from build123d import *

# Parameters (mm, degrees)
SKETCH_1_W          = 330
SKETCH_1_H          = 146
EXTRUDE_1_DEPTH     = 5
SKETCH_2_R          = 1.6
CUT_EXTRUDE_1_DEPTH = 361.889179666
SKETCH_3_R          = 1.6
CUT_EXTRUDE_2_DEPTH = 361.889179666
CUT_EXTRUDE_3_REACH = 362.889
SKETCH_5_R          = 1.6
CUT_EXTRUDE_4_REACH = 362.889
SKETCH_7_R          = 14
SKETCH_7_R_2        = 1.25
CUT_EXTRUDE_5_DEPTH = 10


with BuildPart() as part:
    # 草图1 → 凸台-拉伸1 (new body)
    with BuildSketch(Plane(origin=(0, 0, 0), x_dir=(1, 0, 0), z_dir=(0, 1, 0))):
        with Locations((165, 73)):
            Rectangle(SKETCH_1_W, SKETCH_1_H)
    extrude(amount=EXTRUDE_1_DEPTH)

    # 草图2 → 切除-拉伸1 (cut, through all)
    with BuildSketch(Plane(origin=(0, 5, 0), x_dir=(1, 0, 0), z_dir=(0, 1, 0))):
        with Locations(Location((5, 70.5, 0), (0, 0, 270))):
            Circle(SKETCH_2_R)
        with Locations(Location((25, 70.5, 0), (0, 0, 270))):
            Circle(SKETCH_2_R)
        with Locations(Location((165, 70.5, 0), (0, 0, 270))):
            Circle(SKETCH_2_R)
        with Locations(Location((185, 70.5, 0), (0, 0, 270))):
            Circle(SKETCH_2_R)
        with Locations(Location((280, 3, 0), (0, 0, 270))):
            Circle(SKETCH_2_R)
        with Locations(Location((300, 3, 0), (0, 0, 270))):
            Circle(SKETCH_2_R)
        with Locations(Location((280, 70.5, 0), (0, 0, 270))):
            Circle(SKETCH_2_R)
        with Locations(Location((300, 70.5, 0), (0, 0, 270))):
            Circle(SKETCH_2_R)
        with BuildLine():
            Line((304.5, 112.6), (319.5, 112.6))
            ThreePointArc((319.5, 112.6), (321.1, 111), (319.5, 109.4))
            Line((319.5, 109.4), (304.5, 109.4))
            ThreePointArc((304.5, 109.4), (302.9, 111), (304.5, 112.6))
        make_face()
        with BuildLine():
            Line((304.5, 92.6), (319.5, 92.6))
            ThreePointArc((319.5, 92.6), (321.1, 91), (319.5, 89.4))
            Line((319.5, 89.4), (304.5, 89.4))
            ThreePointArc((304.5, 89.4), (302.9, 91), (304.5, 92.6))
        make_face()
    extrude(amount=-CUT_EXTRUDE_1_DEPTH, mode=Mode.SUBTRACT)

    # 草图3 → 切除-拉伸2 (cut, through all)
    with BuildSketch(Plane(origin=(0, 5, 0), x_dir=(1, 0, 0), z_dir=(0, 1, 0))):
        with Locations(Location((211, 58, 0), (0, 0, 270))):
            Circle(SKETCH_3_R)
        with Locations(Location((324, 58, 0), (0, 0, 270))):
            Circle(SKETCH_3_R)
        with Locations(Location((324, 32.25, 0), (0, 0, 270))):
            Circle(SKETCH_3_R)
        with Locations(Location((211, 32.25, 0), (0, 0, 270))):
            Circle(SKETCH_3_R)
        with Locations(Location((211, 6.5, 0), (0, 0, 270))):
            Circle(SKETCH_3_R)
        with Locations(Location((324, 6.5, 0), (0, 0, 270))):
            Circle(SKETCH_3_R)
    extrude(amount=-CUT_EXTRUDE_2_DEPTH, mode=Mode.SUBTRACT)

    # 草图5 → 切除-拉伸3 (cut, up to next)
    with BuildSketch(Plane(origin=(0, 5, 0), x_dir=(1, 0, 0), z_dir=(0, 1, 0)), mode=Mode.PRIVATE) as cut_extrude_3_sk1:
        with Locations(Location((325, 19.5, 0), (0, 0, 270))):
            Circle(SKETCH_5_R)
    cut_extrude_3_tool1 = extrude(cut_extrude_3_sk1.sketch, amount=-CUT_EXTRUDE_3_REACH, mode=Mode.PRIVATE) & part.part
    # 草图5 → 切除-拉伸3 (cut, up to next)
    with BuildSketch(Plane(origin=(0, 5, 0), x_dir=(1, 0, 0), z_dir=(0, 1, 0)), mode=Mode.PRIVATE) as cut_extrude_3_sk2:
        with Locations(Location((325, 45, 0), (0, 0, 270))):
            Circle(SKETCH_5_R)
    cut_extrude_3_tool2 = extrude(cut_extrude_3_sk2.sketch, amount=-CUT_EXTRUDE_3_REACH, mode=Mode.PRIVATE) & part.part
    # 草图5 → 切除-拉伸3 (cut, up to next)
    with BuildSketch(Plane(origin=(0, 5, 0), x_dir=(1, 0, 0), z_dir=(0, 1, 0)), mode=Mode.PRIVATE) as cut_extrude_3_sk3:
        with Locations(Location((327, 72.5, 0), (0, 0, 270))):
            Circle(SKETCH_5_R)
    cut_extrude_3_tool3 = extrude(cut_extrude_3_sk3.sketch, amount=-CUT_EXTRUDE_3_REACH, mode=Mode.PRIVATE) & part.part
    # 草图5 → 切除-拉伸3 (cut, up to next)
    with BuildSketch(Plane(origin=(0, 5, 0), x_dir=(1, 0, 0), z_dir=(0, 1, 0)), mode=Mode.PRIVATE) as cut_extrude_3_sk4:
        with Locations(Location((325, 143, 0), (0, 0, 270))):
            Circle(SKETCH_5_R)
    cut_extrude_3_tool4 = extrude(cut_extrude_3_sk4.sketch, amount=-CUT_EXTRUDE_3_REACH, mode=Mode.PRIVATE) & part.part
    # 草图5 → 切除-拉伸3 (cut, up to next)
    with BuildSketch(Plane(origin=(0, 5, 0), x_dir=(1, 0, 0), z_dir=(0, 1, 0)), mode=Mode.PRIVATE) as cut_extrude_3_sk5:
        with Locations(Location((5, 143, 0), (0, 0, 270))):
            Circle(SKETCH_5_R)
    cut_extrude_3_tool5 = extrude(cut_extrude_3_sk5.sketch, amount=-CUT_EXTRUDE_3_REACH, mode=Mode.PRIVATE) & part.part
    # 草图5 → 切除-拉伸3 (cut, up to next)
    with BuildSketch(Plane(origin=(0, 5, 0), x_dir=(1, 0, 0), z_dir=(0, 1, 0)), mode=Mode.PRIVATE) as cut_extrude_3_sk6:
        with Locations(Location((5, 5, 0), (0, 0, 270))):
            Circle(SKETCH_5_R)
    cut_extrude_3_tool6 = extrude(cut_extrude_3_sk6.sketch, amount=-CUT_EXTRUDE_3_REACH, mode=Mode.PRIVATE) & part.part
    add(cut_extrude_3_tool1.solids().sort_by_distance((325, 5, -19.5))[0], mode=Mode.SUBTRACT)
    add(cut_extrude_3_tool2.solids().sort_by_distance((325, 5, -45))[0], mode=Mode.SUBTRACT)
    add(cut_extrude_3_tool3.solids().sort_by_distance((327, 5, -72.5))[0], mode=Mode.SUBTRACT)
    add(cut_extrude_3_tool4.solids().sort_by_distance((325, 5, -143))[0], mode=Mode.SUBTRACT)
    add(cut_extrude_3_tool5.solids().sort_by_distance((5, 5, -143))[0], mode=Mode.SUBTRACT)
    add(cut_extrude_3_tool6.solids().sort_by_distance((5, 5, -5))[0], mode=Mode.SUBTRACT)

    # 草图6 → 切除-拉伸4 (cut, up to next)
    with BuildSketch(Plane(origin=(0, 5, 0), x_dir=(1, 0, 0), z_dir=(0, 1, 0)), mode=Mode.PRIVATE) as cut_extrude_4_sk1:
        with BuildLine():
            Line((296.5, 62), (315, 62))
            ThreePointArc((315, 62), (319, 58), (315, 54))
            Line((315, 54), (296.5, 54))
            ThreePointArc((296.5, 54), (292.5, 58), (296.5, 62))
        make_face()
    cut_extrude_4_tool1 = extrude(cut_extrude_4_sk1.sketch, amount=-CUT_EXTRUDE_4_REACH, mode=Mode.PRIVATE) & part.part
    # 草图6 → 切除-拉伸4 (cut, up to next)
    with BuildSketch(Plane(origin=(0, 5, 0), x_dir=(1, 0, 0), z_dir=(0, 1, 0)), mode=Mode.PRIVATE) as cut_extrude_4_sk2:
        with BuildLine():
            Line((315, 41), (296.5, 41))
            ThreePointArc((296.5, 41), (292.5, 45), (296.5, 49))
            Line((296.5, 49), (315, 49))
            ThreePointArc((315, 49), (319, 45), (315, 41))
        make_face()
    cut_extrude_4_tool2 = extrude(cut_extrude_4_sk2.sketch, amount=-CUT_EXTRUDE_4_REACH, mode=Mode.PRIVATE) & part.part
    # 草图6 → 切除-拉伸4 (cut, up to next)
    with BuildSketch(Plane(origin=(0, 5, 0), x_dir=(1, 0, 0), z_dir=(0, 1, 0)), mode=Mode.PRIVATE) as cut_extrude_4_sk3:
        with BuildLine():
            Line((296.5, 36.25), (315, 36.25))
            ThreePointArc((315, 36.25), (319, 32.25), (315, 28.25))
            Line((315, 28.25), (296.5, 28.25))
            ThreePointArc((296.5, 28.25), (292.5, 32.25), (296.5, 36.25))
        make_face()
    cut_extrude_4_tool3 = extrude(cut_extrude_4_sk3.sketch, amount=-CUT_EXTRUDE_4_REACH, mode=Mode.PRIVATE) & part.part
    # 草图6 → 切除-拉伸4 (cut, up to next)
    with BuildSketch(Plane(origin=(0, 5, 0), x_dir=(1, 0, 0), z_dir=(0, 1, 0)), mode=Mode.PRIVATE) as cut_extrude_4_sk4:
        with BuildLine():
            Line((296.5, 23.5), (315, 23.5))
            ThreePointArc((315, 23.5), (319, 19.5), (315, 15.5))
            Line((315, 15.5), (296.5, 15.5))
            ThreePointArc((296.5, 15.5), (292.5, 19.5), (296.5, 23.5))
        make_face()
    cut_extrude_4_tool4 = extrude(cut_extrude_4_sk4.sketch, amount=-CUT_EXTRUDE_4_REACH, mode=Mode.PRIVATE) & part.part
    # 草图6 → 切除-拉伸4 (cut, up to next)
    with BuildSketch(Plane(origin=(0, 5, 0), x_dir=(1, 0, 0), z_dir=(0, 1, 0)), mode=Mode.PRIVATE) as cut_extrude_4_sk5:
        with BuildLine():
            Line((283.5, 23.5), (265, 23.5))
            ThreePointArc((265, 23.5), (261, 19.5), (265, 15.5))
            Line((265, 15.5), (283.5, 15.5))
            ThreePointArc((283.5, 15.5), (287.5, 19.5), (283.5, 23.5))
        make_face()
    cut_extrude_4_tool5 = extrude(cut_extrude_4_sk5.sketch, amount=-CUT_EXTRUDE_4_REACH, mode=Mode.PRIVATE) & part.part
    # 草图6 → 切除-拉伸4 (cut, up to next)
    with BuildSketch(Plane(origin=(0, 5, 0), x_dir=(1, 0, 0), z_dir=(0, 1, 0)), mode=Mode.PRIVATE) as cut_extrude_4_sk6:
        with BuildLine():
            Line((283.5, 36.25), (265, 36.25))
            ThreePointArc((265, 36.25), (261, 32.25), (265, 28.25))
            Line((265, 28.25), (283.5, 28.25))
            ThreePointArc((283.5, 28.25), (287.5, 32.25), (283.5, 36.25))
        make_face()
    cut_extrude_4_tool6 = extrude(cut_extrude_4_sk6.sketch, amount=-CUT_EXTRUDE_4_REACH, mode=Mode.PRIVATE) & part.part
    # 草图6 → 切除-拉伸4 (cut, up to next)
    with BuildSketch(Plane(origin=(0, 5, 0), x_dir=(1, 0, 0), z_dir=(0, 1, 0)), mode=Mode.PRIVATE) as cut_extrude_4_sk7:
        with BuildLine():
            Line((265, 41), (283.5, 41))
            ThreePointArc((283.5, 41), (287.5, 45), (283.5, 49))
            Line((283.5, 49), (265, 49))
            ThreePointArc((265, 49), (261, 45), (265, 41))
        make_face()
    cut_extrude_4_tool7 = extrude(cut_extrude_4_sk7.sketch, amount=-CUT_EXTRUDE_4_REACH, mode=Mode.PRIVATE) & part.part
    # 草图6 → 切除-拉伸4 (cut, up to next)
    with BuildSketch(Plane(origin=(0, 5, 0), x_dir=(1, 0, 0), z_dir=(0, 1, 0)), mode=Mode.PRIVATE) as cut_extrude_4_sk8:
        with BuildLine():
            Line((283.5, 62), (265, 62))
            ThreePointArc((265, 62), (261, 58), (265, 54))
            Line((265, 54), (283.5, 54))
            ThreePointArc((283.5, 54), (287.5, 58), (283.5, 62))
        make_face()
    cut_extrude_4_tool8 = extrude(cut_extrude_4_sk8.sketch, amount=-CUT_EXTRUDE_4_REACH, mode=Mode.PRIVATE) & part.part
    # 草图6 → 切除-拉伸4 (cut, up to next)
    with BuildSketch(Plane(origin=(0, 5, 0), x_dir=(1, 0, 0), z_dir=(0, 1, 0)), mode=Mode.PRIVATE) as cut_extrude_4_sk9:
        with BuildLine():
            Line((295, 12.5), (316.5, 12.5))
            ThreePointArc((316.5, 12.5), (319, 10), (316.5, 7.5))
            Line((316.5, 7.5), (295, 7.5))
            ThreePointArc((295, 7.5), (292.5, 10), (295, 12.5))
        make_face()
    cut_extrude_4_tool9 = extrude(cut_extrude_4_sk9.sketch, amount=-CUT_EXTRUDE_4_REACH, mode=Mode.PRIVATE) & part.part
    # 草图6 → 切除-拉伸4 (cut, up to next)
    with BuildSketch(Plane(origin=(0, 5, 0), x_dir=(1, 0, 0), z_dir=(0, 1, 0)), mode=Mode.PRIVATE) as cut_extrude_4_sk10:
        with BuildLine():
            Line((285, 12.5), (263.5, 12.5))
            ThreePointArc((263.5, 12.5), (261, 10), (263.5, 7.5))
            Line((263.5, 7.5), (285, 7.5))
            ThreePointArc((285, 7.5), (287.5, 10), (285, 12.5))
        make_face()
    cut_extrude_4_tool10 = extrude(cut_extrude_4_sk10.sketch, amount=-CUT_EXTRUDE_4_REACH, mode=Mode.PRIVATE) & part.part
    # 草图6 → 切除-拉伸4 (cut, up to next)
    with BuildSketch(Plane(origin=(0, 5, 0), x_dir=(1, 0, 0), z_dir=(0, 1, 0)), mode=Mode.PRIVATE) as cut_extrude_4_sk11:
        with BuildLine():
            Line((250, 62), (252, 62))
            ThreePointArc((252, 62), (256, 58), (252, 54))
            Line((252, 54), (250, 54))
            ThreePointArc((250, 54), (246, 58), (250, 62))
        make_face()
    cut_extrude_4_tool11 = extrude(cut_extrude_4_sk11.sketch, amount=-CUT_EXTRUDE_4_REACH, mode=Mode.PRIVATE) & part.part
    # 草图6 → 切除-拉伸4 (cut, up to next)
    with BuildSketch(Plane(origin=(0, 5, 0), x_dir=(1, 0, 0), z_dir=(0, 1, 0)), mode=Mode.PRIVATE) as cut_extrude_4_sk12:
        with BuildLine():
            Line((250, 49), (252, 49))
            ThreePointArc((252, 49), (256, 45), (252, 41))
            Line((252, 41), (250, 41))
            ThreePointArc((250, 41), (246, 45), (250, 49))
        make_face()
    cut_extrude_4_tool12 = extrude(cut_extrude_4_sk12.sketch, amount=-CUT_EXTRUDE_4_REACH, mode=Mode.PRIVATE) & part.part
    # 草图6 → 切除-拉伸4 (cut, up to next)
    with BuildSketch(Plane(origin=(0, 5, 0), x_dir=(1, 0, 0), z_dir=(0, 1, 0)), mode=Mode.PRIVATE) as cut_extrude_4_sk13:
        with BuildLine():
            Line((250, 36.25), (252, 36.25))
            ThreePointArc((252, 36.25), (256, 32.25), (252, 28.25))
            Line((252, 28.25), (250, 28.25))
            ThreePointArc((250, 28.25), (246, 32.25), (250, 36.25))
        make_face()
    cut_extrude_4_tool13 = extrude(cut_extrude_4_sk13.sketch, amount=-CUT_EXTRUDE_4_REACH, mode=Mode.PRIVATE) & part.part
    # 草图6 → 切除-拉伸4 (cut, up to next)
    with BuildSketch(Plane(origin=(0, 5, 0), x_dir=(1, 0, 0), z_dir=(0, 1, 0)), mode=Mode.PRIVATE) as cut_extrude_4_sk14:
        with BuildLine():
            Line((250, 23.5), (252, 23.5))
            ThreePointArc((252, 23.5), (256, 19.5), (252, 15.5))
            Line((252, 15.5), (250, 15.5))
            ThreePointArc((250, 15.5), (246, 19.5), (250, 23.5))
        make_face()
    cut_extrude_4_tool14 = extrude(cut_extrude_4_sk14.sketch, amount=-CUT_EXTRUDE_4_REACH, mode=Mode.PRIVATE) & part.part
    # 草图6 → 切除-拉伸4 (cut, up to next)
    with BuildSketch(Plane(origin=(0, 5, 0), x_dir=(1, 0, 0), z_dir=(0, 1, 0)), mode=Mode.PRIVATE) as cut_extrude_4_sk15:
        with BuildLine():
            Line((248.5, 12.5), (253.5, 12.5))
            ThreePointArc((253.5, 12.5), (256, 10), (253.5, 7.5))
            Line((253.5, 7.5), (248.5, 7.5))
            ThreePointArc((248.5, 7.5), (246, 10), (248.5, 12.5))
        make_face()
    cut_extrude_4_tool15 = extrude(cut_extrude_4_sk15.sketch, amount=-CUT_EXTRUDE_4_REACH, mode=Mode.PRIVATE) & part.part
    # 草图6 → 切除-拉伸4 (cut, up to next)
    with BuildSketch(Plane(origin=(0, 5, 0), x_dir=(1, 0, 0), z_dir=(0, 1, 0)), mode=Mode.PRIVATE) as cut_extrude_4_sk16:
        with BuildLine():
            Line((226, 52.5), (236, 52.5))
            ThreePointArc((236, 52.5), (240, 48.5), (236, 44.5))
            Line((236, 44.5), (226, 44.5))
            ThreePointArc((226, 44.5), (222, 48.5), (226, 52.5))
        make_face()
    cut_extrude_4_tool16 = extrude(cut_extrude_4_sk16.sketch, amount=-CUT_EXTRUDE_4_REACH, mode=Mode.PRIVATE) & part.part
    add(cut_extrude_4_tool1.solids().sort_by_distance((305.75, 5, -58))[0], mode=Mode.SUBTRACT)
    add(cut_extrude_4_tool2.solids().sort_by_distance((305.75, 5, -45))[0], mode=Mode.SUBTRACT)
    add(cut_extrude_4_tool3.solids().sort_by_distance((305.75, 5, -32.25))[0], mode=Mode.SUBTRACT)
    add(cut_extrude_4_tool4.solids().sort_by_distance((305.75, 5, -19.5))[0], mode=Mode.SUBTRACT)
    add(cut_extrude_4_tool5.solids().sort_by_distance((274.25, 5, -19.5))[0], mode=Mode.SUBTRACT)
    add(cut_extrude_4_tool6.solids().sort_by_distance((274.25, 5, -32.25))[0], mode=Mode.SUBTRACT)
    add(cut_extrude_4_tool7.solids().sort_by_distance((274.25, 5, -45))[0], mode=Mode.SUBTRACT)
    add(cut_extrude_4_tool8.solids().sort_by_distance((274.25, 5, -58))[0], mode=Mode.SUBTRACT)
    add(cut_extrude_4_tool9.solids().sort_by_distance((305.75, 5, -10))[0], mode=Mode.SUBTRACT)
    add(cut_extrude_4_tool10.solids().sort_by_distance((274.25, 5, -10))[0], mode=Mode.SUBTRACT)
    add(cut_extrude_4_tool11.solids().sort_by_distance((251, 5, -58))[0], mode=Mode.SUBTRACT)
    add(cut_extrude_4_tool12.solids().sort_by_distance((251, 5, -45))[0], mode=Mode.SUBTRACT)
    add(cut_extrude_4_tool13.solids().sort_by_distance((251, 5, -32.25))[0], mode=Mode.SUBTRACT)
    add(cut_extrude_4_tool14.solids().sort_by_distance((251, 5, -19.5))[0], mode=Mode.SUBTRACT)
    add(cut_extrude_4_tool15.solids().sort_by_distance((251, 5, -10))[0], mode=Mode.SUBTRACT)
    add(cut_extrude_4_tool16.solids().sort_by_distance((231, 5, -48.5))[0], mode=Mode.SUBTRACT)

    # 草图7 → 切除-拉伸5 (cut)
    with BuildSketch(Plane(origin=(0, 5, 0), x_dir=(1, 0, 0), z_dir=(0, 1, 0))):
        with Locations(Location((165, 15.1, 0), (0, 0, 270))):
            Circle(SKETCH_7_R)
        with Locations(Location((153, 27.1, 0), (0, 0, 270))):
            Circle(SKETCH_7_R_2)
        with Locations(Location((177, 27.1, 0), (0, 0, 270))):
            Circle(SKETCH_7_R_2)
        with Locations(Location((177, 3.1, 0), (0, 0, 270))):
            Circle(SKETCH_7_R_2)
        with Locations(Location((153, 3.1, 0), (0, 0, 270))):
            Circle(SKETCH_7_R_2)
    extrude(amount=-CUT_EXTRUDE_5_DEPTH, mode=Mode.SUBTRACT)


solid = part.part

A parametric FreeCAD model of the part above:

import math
import FreeCAD as App
import Part
import Sketcher

V = App.Vector
Q = App.Units.Quantity

doc = App.newDocument("Part")
body = doc.addObject("PartDesign::Body", "Body")

sketch1 = body.newObject("Sketcher::SketchObject", "Sketch")
sketch1.AttachmentSupport = (doc.getObject("XZ_Plane"), [""])
sketch1.MapMode = "FlatFace"
sketch1.addGeometry([
    Part.LineSegment(V(0, -146, 0), V(0, 0, 0)),
    Part.LineSegment(V(0, 0, 0), V(330, 0, 0)),
    Part.LineSegment(V(330, 0, 0), V(330, -146, 0)),
    Part.LineSegment(V(330, -146, 0), V(0, -146, 0)),
], False)
sketch1.addConstraint([
    Sketcher.Constraint("Coincident", 0, 2, 1, 1),
    Sketcher.Constraint("Coincident", 1, 2, 2, 1),
    Sketcher.Constraint("Coincident", 2, 2, 3, 1),
    Sketcher.Constraint("Coincident", 3, 2, 0, 1),
    Sketcher.Constraint("Vertical", 0),
    Sketcher.Constraint("Horizontal", 1),
    Sketcher.Constraint("Vertical", 2),
    Sketcher.Constraint("Horizontal", 3),
    Sketcher.Constraint("Coincident", 0, 2, -1, 1),
    Sketcher.Constraint("DistanceX", 1, 1, 1, 2, Q("330 mm")),
    Sketcher.Constraint("DistanceY", 0, 1, 0, 2, Q("146 mm")),
])
pad1 = body.newObject("PartDesign::Pad", "Pad")
pad1.Profile = sketch1
pad1.Length = 5
pad1.Reversed = True

sketch2 = body.newObject("Sketcher::SketchObject", "Sketch001")
sketch2.AttachmentSupport = (doc.getObject("XZ_Plane"), [""])
sketch2.MapMode = "FlatFace"
sketch2.AttachmentOffset = App.Placement(V(0, 0, -5), App.Rotation())
sketch2.addGeometry([
    Part.Circle(V(5, -70.5, 0), V(0, 0, 1), 1.6),
    Part.Circle(V(25, -70.5, 0), V(0, 0, 1), 1.6),
    Part.Circle(V(165, -70.5, 0), V(0, 0, 1), 1.6),
    Part.Circle(V(185, -70.5, 0), V(0, 0, 1), 1.6),
    Part.Circle(V(280, -3, 0), V(0, 0, 1), 1.6),
    Part.Circle(V(300, -3, 0), V(0, 0, 1), 1.6),
    Part.Circle(V(280, -70.5, 0), V(0, 0, 1), 1.6),
    Part.Circle(V(300, -70.5, 0), V(0, 0, 1), 1.6),
    Part.LineSegment(V(319.5, -112.6, 0), V(304.5, -112.6, 0)),
    Part.ArcOfCircle(Part.Circle(V(304.5, -111, 0), V(0, 0, 1), 1.6), math.radians(90), math.radians(270)),
    Part.LineSegment(V(304.5, -109.4, 0), V(319.5, -109.4, 0)),
    Part.ArcOfCircle(Part.Circle(V(319.5, -111, 0), V(0, 0, 1), 1.6), math.radians(-90), math.radians(90)),
    Part.LineSegment(V(319.5, -92.6, 0), V(304.5, -92.6, 0)),
    Part.ArcOfCircle(Part.Circle(V(304.5, -91, 0), V(0, 0, 1), 1.6), math.radians(90), math.radians(270)),
    Part.LineSegment(V(304.5, -89.4, 0), V(319.5, -89.4, 0)),
    Part.ArcOfCircle(Part.Circle(V(319.5, -91, 0), V(0, 0, 1), 1.6), math.radians(-90), math.radians(90)),
], False)
sketch2.addConstraint([
    Sketcher.Constraint("Tangent", 8, 2, 9, 2),
    Sketcher.Constraint("Tangent", 9, 1, 10, 1),
    Sketcher.Constraint("Tangent", 10, 2, 11, 2),
    Sketcher.Constraint("Tangent", 11, 1, 8, 1),
    Sketcher.Constraint("Tangent", 12, 2, 13, 2),
    Sketcher.Constraint("Tangent", 13, 1, 14, 1),
    Sketcher.Constraint("Tangent", 14, 2, 15, 2),
    Sketcher.Constraint("Tangent", 15, 1, 12, 1),
    Sketcher.Constraint("Horizontal", 8),
    Sketcher.Constraint("Horizontal", 10),
    Sketcher.Constraint("Horizontal", 12),
    Sketcher.Constraint("Horizontal", 14),
    Sketcher.Constraint("Equal", 0, 1),
    Sketcher.Constraint("Equal", 1, 2),
    Sketcher.Constraint("Equal", 2, 3),
    Sketcher.Constraint("Equal", 3, 4),
    Sketcher.Constraint("Equal", 4, 5),
    Sketcher.Constraint("Equal", 5, 6),
    Sketcher.Constraint("Equal", 6, 7),
    Sketcher.Constraint("Equal", 7, 9),
    Sketcher.Constraint("Equal", 11, 13),
    Sketcher.Constraint("Horizontal", 0, 3, 1, 3),
    Sketcher.Constraint("Horizontal", 1, 3, 2, 3),
    Sketcher.Constraint("Horizontal", 2, 3, 3, 3),
    Sketcher.Constraint("Horizontal", 4, 3, 5, 3),
    Sketcher.Constraint("Horizontal", 3, 3, 6, 3),
    Sketcher.Constraint("Horizontal", 6, 3, 7, 3),
    Sketcher.Constraint("Vertical", 4, 3, 6, 3),
    Sketcher.Constraint("Vertical", 5, 3, 7, 3),
    Sketcher.Constraint("Vertical", 9, 3, 13, 3),
    Sketcher.Constraint("Vertical", 11, 3, 15, 3),
    Sketcher.Constraint("Diameter", 0, Q("3.2 mm")),
    Sketcher.Constraint("DistanceX", 8, 2, 8, 1, Q("15 mm")),
    Sketcher.Constraint("DistanceX", -1, 1, 0, 3, Q("5 mm")),
    Sketcher.Constraint("DistanceX", -1, 1, 1, 3, Q("25 mm")),
    Sketcher.Constraint("DistanceX", -1, 1, 2, 3, Q("165 mm")),
    Sketcher.Constraint("DistanceX", -1, 1, 3, 3, Q("185 mm")),
    Sketcher.Constraint("DistanceX", -1, 1, 4, 3, Q("280 mm")),
    Sketcher.Constraint("DistanceY", 4, 3, -1, 1, Q("3 mm")),
    Sketcher.Constraint("DistanceX", -1, 1, 5, 3, Q("300 mm")),
    Sketcher.Constraint("DistanceY", 9, 3, -1, 1, Q("111 mm")),
    Sketcher.Constraint("DistanceY", 13, 3, -1, 1, Q("91 mm")),
    Sketcher.Constraint("DistanceY", 0, 3, -1, 1, Q("70.5 mm")),
    Sketcher.Constraint("DistanceX", -1, 1, 9, 3, Q("304.5 mm")),
])
pocket1 = body.newObject("PartDesign::Pocket", "Pocket")
pocket1.Profile = sketch2
pocket1.Type = "ThroughAll"
pocket1.Reversed = True

sketch3 = body.newObject("Sketcher::SketchObject", "Sketch002")
sketch3.AttachmentSupport = (doc.getObject("XZ_Plane"), [""])
sketch3.MapMode = "FlatFace"
sketch3.AttachmentOffset = App.Placement(V(0, 0, -5), App.Rotation())
sketch3.addGeometry([
    Part.Circle(V(211, -58, 0), V(0, 0, 1), 1.6),
    Part.Circle(V(324, -58, 0), V(0, 0, 1), 1.6),
    Part.Circle(V(324, -32.2, 0), V(0, 0, 1), 1.6),
    Part.Circle(V(211, -32.2, 0), V(0, 0, 1), 1.6),
    Part.Circle(V(211, -6.5, 0), V(0, 0, 1), 1.6),
    Part.Circle(V(324, -6.5, 0), V(0, 0, 1), 1.6),
], False)
sketch3.addConstraint([
    Sketcher.Constraint("Equal", 0, 1),
    Sketcher.Constraint("Equal", 1, 2),
    Sketcher.Constraint("Equal", 2, 3),
    Sketcher.Constraint("Equal", 3, 4),
    Sketcher.Constraint("Equal", 4, 5),
    Sketcher.Constraint("Horizontal", 0, 3, 1, 3),
    Sketcher.Constraint("Horizontal", 2, 3, 3, 3),
    Sketcher.Constraint("Horizontal", 4, 3, 5, 3),
    Sketcher.Constraint("Vertical", 1, 3, 2, 3),
    Sketcher.Constraint("Vertical", 0, 3, 3, 3),
    Sketcher.Constraint("Vertical", 3, 3, 4, 3),
    Sketcher.Constraint("Vertical", 2, 3, 5, 3),
    Sketcher.Constraint("Diameter", 0, Q("3.2 mm")),
    Sketcher.Constraint("DistanceX", -1, 1, 0, 3, Q("211 mm")),
    Sketcher.Constraint("DistanceY", 0, 3, -1, 1, Q("58 mm")),
    Sketcher.Constraint("DistanceX", -1, 1, 1, 3, Q("324 mm")),
    Sketcher.Constraint("DistanceY", 4, 3, -1, 1, Q("6.5 mm")),
    Sketcher.Constraint("DistanceY", 2, 3, -1, 1, Q("32.25 mm")),
])
pocket2 = body.newObject("PartDesign::Pocket", "Pocket001")
pocket2.Profile = sketch3
pocket2.Type = "ThroughAll"
pocket2.Reversed = True

sketch4 = body.newObject("Sketcher::SketchObject", "Sketch003")
sketch4.AttachmentSupport = (doc.getObject("XZ_Plane"), [""])
sketch4.MapMode = "FlatFace"
sketch4.AttachmentOffset = App.Placement(V(0, 0, -5), App.Rotation())
sketch4.addGeometry(Part.Circle(V(325, -19.5, 0), V(0, 0, 1), 1.6), False)
sketch4.addConstraint([
    Sketcher.Constraint("Diameter", 0, Q("3.2 mm")),
    Sketcher.Constraint("DistanceX", -1, 1, 0, 3, Q("325 mm")),
    Sketcher.Constraint("DistanceY", 0, 3, -1, 1, Q("19.5 mm")),
])
pocket3 = body.newObject("PartDesign::Pocket", "Pocket002")
pocket3.Profile = sketch4
pocket3.Type = "UpToFirst"
pocket3.Reversed = True

sketch5 = body.newObject("Sketcher::SketchObject", "Sketch004")
sketch5.AttachmentSupport = (doc.getObject("XZ_Plane"), [""])
sketch5.MapMode = "FlatFace"
sketch5.AttachmentOffset = App.Placement(V(0, 0, -5), App.Rotation())
sketch5.addGeometry(Part.Circle(V(325, -45, 0), V(0, 0, 1), 1.6), False)
sketch5.addConstraint([
    Sketcher.Constraint("Diameter", 0, Q("3.2 mm")),
    Sketcher.Constraint("DistanceX", -1, 1, 0, 3, Q("325 mm")),
    Sketcher.Constraint("DistanceY", 0, 3, -1, 1, Q("45 mm")),
])
pocket4 = body.newObject("PartDesign::Pocket", "Pocket003")
pocket4.Profile = sketch5
pocket4.Type = "UpToFirst"
pocket4.Reversed = True

sketch6 = body.newObject("Sketcher::SketchObject", "Sketch005")
sketch6.AttachmentSupport = (doc.getObject("XZ_Plane"), [""])
sketch6.MapMode = "FlatFace"
sketch6.AttachmentOffset = App.Placement(V(0, 0, -5), App.Rotation())
sketch6.addGeometry(Part.Circle(V(327, -72.5, 0), V(0, 0, 1), 1.6), False)
sketch6.addConstraint([
    Sketcher.Constraint("Diameter", 0, Q("3.2 mm")),
    Sketcher.Constraint("DistanceX", -1, 1, 0, 3, Q("327 mm")),
    Sketcher.Constraint("DistanceY", 0, 3, -1, 1, Q("72.5 mm")),
])
pocket5 = body.newObject("PartDesign::Pocket", "Pocket004")
pocket5.Profile = sketch6
pocket5.Type = "UpToFirst"
pocket5.Reversed = True

sketch7 = body.newObject("Sketcher::SketchObject", "Sketch006")
sketch7.AttachmentSupport = (doc.getObject("XZ_Plane"), [""])
sketch7.MapMode = "FlatFace"
sketch7.AttachmentOffset = App.Placement(V(0, 0, -5), App.Rotation())
sketch7.addGeometry(Part.Circle(V(325, -143, 0), V(0, 0, 1), 1.6), False)
sketch7.addConstraint([
    Sketcher.Constraint("Diameter", 0, Q("3.2 mm")),
    Sketcher.Constraint("DistanceX", -1, 1, 0, 3, Q("325 mm")),
    Sketcher.Constraint("DistanceY", 0, 3, -1, 1, Q("143 mm")),
])
pocket6 = body.newObject("PartDesign::Pocket", "Pocket005")
pocket6.Profile = sketch7
pocket6.Type = "UpToFirst"
pocket6.Reversed = True

sketch8 = body.newObject("Sketcher::SketchObject", "Sketch007")
sketch8.AttachmentSupport = (doc.getObject("XZ_Plane"), [""])
sketch8.MapMode = "FlatFace"
sketch8.AttachmentOffset = App.Placement(V(0, 0, -5), App.Rotation())
sketch8.addGeometry(Part.Circle(V(5, -143, 0), V(0, 0, 1), 1.6), False)
sketch8.addConstraint([
    Sketcher.Constraint("Diameter", 0, Q("3.2 mm")),
    Sketcher.Constraint("DistanceX", -1, 1, 0, 3, Q("5 mm")),
    Sketcher.Constraint("DistanceY", 0, 3, -1, 1, Q("143 mm")),
])
pocket7 = body.newObject("PartDesign::Pocket", "Pocket006")
pocket7.Profile = sketch8
pocket7.Type = "UpToFirst"
pocket7.Reversed = True

sketch9 = body.newObject("Sketcher::SketchObject", "Sketch008")
sketch9.AttachmentSupport = (doc.getObject("XZ_Plane"), [""])
sketch9.MapMode = "FlatFace"
sketch9.AttachmentOffset = App.Placement(V(0, 0, -5), App.Rotation())
sketch9.addGeometry(Part.Circle(V(5, -5, 0), V(0, 0, 1), 1.6), False)
sketch9.addConstraint([
    Sketcher.Constraint("Diameter", 0, Q("3.2 mm")),
    Sketcher.Constraint("DistanceX", -1, 1, 0, 3, Q("5 mm")),
    Sketcher.Constraint("DistanceY", 0, 3, -1, 1, Q("5 mm")),
])
pocket8 = body.newObject("PartDesign::Pocket", "Pocket007")
pocket8.Profile = sketch9
pocket8.Type = "UpToFirst"
pocket8.Reversed = True

sketch10 = body.newObject("Sketcher::SketchObject", "Sketch009")
sketch10.AttachmentSupport = (doc.getObject("XZ_Plane"), [""])
sketch10.MapMode = "FlatFace"
sketch10.AttachmentOffset = App.Placement(V(0, 0, -5), App.Rotation())
sketch10.addGeometry([
    Part.LineSegment(V(315, -62, 0), V(296.5, -62, 0)),
    Part.ArcOfCircle(Part.Circle(V(296.5, -58, 0), V(0, 0, 1), 4), math.radians(90), math.radians(270)),
    Part.LineSegment(V(296.5, -54, 0), V(315, -54, 0)),
    Part.ArcOfCircle(Part.Circle(V(315, -58, 0), V(0, 0, 1), 4), math.radians(-90), math.radians(90)),
], False)
sketch10.addConstraint([
    Sketcher.Constraint("Tangent", 0, 2, 1, 2),
    Sketcher.Constraint("Tangent", 1, 1, 2, 1),
    Sketcher.Constraint("Tangent", 2, 2, 3, 2),
    Sketcher.Constraint("Tangent", 3, 1, 0, 1),
    Sketcher.Constraint("Horizontal", 0),
    Sketcher.Constraint("Horizontal", 2),
    Sketcher.Constraint("Radius", 1, Q("4 mm")),
    Sketcher.Constraint("DistanceX", 0, 2, 0, 1, Q("18.5 mm")),
    Sketcher.Constraint("DistanceY", 1, 3, -1, 1, Q("58 mm")),
    Sketcher.Constraint("DistanceX", -1, 1, 3, 3, Q("315 mm")),
])
pocket9 = body.newObject("PartDesign::Pocket", "Pocket008")
pocket9.Profile = sketch10
pocket9.Type = "UpToFirst"
pocket9.Reversed = True

sketch11 = body.newObject("Sketcher::SketchObject", "Sketch010")
sketch11.AttachmentSupport = (doc.getObject("XZ_Plane"), [""])
sketch11.MapMode = "FlatFace"
sketch11.AttachmentOffset = App.Placement(V(0, 0, -5), App.Rotation())
sketch11.addGeometry([
    Part.LineSegment(V(296.5, -41, 0), V(315, -41, 0)),
    Part.ArcOfCircle(Part.Circle(V(315, -45, 0), V(0, 0, 1), 4), math.radians(-90), math.radians(90)),
    Part.LineSegment(V(315, -49, 0), V(296.5, -49, 0)),
    Part.ArcOfCircle(Part.Circle(V(296.5, -45, 0), V(0, 0, 1), 4), math.radians(90), math.radians(270)),
], False)
sketch11.addConstraint([
    Sketcher.Constraint("Tangent", 0, 2, 1, 2),
    Sketcher.Constraint("Tangent", 1, 1, 2, 1),
    Sketcher.Constraint("Tangent", 2, 2, 3, 2),
    Sketcher.Constraint("Tangent", 3, 1, 0, 1),
    Sketcher.Constraint("Horizontal", 0),
    Sketcher.Constraint("Horizontal", 2),
    Sketcher.Constraint("Radius", 1, Q("4 mm")),
    Sketcher.Constraint("DistanceX", 0, 1, 0, 2, Q("18.5 mm")),
    Sketcher.Constraint("DistanceX", -1, 1, 1, 3, Q("315 mm")),
    Sketcher.Constraint("DistanceY", 1, 3, -1, 1, Q("45 mm")),
])
pocket10 = body.newObject("PartDesign::Pocket", "Pocket009")
pocket10.Profile = sketch11
pocket10.Type = "UpToFirst"
pocket10.Reversed = True

sketch12 = body.newObject("Sketcher::SketchObject", "Sketch011")
sketch12.AttachmentSupport = (doc.getObject("XZ_Plane"), [""])
sketch12.MapMode = "FlatFace"
sketch12.AttachmentOffset = App.Placement(V(0, 0, -5), App.Rotation())
sketch12.addGeometry([
    Part.LineSegment(V(315, -36.2, 0), V(296.5, -36.2, 0)),
    Part.ArcOfCircle(Part.Circle(V(296.5, -32.2, 0), V(0, 0, 1), 4), math.radians(90), math.radians(270)),
    Part.LineSegment(V(296.5, -28.2, 0), V(315, -28.2, 0)),
    Part.ArcOfCircle(Part.Circle(V(315, -32.2, 0), V(0, 0, 1), 4), math.radians(-90), math.radians(90)),
], False)
sketch12.addConstraint([
    Sketcher.Constraint("Tangent", 0, 2, 1, 2),
    Sketcher.Constraint("Tangent", 1, 1, 2, 1),
    Sketcher.Constraint("Tangent", 2, 2, 3, 2),
    Sketcher.Constraint("Tangent", 3, 1, 0, 1),
    Sketcher.Constraint("Horizontal", 0),
    Sketcher.Constraint("Horizontal", 2),
    Sketcher.Constraint("Radius", 1, Q("4 mm")),
    Sketcher.Constraint("DistanceX", 0, 2, 0, 1, Q("18.5 mm")),
    Sketcher.Constraint("DistanceX", -1, 1, 3, 3, Q("315 mm")),
    Sketcher.Constraint("DistanceY", 1, 3, -1, 1, Q("32.25 mm")),
])
pocket11 = body.newObject("PartDesign::Pocket", "Pocket010")
pocket11.Profile = sketch12
pocket11.Type = "UpToFirst"
pocket11.Reversed = True

sketch13 = body.newObject("Sketcher::SketchObject", "Sketch012")
sketch13.AttachmentSupport = (doc.getObject("XZ_Plane"), [""])
sketch13.MapMode = "FlatFace"
sketch13.AttachmentOffset = App.Placement(V(0, 0, -5), App.Rotation())
sketch13.addGeometry([
    Part.LineSegment(V(315, -23.5, 0), V(296.5, -23.5, 0)),
    Part.ArcOfCircle(Part.Circle(V(296.5, -19.5, 0), V(0, 0, 1), 4), math.radians(90), math.radians(270)),
    Part.LineSegment(V(296.5, -15.5, 0), V(315, -15.5, 0)),
    Part.ArcOfCircle(Part.Circle(V(315, -19.5, 0), V(0, 0, 1), 4), math.radians(-90), math.radians(90)),
], False)
sketch13.addConstraint([
    Sketcher.Constraint("Tangent", 0, 2, 1, 2),
    Sketcher.Constraint("Tangent", 1, 1, 2, 1),
    Sketcher.Constraint("Tangent", 2, 2, 3, 2),
    Sketcher.Constraint("Tangent", 3, 1, 0, 1),
    Sketcher.Constraint("Horizontal", 0),
    Sketcher.Constraint("Horizontal", 2),
    Sketcher.Constraint("Radius", 1, Q("4 mm")),
    Sketcher.Constraint("DistanceX", 0, 2, 0, 1, Q("18.5 mm")),
    Sketcher.Constraint("DistanceX", -1, 1, 3, 3, Q("315 mm")),
    Sketcher.Constraint("DistanceY", 1, 3, -1, 1, Q("19.5 mm")),
])
pocket12 = body.newObject("PartDesign::Pocket", "Pocket011")
pocket12.Profile = sketch13
pocket12.Type = "UpToFirst"
pocket12.Reversed = True

sketch14 = body.newObject("Sketcher::SketchObject", "Sketch013")
sketch14.AttachmentSupport = (doc.getObject("XZ_Plane"), [""])
sketch14.MapMode = "FlatFace"
sketch14.AttachmentOffset = App.Placement(V(0, 0, -5), App.Rotation())
sketch14.addGeometry([
    Part.LineSegment(V(283.5, -23.5, 0), V(265, -23.5, 0)),
    Part.ArcOfCircle(Part.Circle(V(265, -19.5, 0), V(0, 0, 1), 4), math.radians(90), math.radians(270)),
    Part.LineSegment(V(265, -15.5, 0), V(283.5, -15.5, 0)),
    Part.ArcOfCircle(Part.Circle(V(283.5, -19.5, 0), V(0, 0, 1), 4), math.radians(-90), math.radians(90)),
], False)
sketch14.addConstraint([
    Sketcher.Constraint("Tangent", 0, 2, 1, 2),
    Sketcher.Constraint("Tangent", 1, 1, 2, 1),
    Sketcher.Constraint("Tangent", 2, 2, 3, 2),
    Sketcher.Constraint("Tangent", 3, 1, 0, 1),
    Sketcher.Constraint("Horizontal", 0),
    Sketcher.Constraint("Horizontal", 2),
    Sketcher.Constraint("Radius", 1, Q("4 mm")),
    Sketcher.Constraint("DistanceX", 0, 2, 0, 1, Q("18.5 mm")),
    Sketcher.Constraint("DistanceX", -1, 1, 1, 3, Q("265 mm")),
    Sketcher.Constraint("DistanceY", 1, 3, -1, 1, Q("19.5 mm")),
])
pocket13 = body.newObject("PartDesign::Pocket", "Pocket012")
pocket13.Profile = sketch14
pocket13.Type = "UpToFirst"
pocket13.Reversed = True

sketch15 = body.newObject("Sketcher::SketchObject", "Sketch014")
sketch15.AttachmentSupport = (doc.getObject("XZ_Plane"), [""])
sketch15.MapMode = "FlatFace"
sketch15.AttachmentOffset = App.Placement(V(0, 0, -5), App.Rotation())
sketch15.addGeometry([
    Part.LineSegment(V(283.5, -36.2, 0), V(265, -36.2, 0)),
    Part.ArcOfCircle(Part.Circle(V(265, -32.2, 0), V(0, 0, 1), 4), math.radians(90), math.radians(270)),
    Part.LineSegment(V(265, -28.2, 0), V(283.5, -28.2, 0)),
    Part.ArcOfCircle(Part.Circle(V(283.5, -32.2, 0), V(0, 0, 1), 4), math.radians(-90), math.radians(90)),
], False)
sketch15.addConstraint([
    Sketcher.Constraint("Tangent", 0, 2, 1, 2),
    Sketcher.Constraint("Tangent", 1, 1, 2, 1),
    Sketcher.Constraint("Tangent", 2, 2, 3, 2),
    Sketcher.Constraint("Tangent", 3, 1, 0, 1),
    Sketcher.Constraint("Horizontal", 0),
    Sketcher.Constraint("Horizontal", 2),
    Sketcher.Constraint("Radius", 1, Q("4 mm")),
    Sketcher.Constraint("DistanceX", 0, 2, 0, 1, Q("18.5 mm")),
    Sketcher.Constraint("DistanceX", -1, 1, 1, 3, Q("265 mm")),
    Sketcher.Constraint("DistanceY", 1, 3, -1, 1, Q("32.25 mm")),
])
pocket14 = body.newObject("PartDesign::Pocket", "Pocket013")
pocket14.Profile = sketch15
pocket14.Type = "UpToFirst"
pocket14.Reversed = True

sketch16 = body.newObject("Sketcher::SketchObject", "Sketch015")
sketch16.AttachmentSupport = (doc.getObject("XZ_Plane"), [""])
sketch16.MapMode = "FlatFace"
sketch16.AttachmentOffset = App.Placement(V(0, 0, -5), App.Rotation())
sketch16.addGeometry([
    Part.LineSegment(V(265, -41, 0), V(283.5, -41, 0)),
    Part.ArcOfCircle(Part.Circle(V(283.5, -45, 0), V(0, 0, 1), 4), math.radians(-90), math.radians(90)),
    Part.LineSegment(V(283.5, -49, 0), V(265, -49, 0)),
    Part.ArcOfCircle(Part.Circle(V(265, -45, 0), V(0, 0, 1), 4), math.radians(90), math.radians(270)),
], False)
sketch16.addConstraint([
    Sketcher.Constraint("Tangent", 0, 2, 1, 2),
    Sketcher.Constraint("Tangent", 1, 1, 2, 1),
    Sketcher.Constraint("Tangent", 2, 2, 3, 2),
    Sketcher.Constraint("Tangent", 3, 1, 0, 1),
    Sketcher.Constraint("Horizontal", 0),
    Sketcher.Constraint("Horizontal", 2),
    Sketcher.Constraint("Radius", 1, Q("4 mm")),
    Sketcher.Constraint("DistanceX", 0, 1, 0, 2, Q("18.5 mm")),
    Sketcher.Constraint("DistanceY", 1, 3, -1, 1, Q("45 mm")),
    Sketcher.Constraint("DistanceX", -1, 1, 3, 3, Q("265 mm")),
])
pocket15 = body.newObject("PartDesign::Pocket", "Pocket014")
pocket15.Profile = sketch16
pocket15.Type = "UpToFirst"
pocket15.Reversed = True

sketch17 = body.newObject("Sketcher::SketchObject", "Sketch016")
sketch17.AttachmentSupport = (doc.getObject("XZ_Plane"), [""])
sketch17.MapMode = "FlatFace"
sketch17.AttachmentOffset = App.Placement(V(0, 0, -5), App.Rotation())
sketch17.addGeometry([
    Part.LineSegment(V(283.5, -62, 0), V(265, -62, 0)),
    Part.ArcOfCircle(Part.Circle(V(265, -58, 0), V(0, 0, 1), 4), math.radians(90), math.radians(270)),
    Part.LineSegment(V(265, -54, 0), V(283.5, -54, 0)),
    Part.ArcOfCircle(Part.Circle(V(283.5, -58, 0), V(0, 0, 1), 4), math.radians(-90), math.radians(90)),
], False)
sketch17.addConstraint([
    Sketcher.Constraint("Tangent", 0, 2, 1, 2),
    Sketcher.Constraint("Tangent", 1, 1, 2, 1),
    Sketcher.Constraint("Tangent", 2, 2, 3, 2),
    Sketcher.Constraint("Tangent", 3, 1, 0, 1),
    Sketcher.Constraint("Horizontal", 0),
    Sketcher.Constraint("Horizontal", 2),
    Sketcher.Constraint("Radius", 1, Q("4 mm")),
    Sketcher.Constraint("DistanceX", 0, 2, 0, 1, Q("18.5 mm")),
    Sketcher.Constraint("DistanceX", -1, 1, 1, 3, Q("265 mm")),
    Sketcher.Constraint("DistanceY", 1, 3, -1, 1, Q("58 mm")),
])
pocket16 = body.newObject("PartDesign::Pocket", "Pocket015")
pocket16.Profile = sketch17
pocket16.Type = "UpToFirst"
pocket16.Reversed = True

sketch18 = body.newObject("Sketcher::SketchObject", "Sketch017")
sketch18.AttachmentSupport = (doc.getObject("XZ_Plane"), [""])
sketch18.MapMode = "FlatFace"
sketch18.AttachmentOffset = App.Placement(V(0, 0, -5), App.Rotation())
sketch18.addGeometry([
    Part.LineSegment(V(316.5, -12.5, 0), V(295, -12.5, 0)),
    Part.ArcOfCircle(Part.Circle(V(295, -10, 0), V(0, 0, 1), 2.5), math.radians(90), math.radians(270)),
    Part.LineSegment(V(295, -7.5, 0), V(316.5, -7.5, 0)),
    Part.ArcOfCircle(Part.Circle(V(316.5, -10, 0), V(0, 0, 1), 2.5), math.radians(-90), math.radians(90)),
], False)
sketch18.addConstraint([
    Sketcher.Constraint("Tangent", 0, 2, 1, 2),
    Sketcher.Constraint("Tangent", 1, 1, 2, 1),
    Sketcher.Constraint("Tangent", 2, 2, 3, 2),
    Sketcher.Constraint("Tangent", 3, 1, 0, 1),
    Sketcher.Constraint("Horizontal", 0),
    Sketcher.Constraint("Horizontal", 2),
    Sketcher.Constraint("Radius", 1, Q("2.5 mm")),
    Sketcher.Constraint("DistanceX", 0, 2, 0, 1, Q("21.5 mm")),
    Sketcher.Constraint("DistanceX", -1, 1, 1, 3, Q("295 mm")),
    Sketcher.Constraint("DistanceY", 1, 3, -1, 1, Q("10 mm")),
])
pocket17 = body.newObject("PartDesign::Pocket", "Pocket016")
pocket17.Profile = sketch18
pocket17.Type = "UpToFirst"
pocket17.Reversed = True

sketch19 = body.newObject("Sketcher::SketchObject", "Sketch018")
sketch19.AttachmentSupport = (doc.getObject("XZ_Plane"), [""])
sketch19.MapMode = "FlatFace"
sketch19.AttachmentOffset = App.Placement(V(0, 0, -5), App.Rotation())
sketch19.addGeometry([
    Part.LineSegment(V(285, -12.5, 0), V(263.5, -12.5, 0)),
    Part.ArcOfCircle(Part.Circle(V(263.5, -10, 0), V(0, 0, 1), 2.5), math.radians(90), math.radians(270)),
    Part.LineSegment(V(263.5, -7.5, 0), V(285, -7.5, 0)),
    Part.ArcOfCircle(Part.Circle(V(285, -10, 0), V(0, 0, 1), 2.5), math.radians(-90), math.radians(90)),
], False)
sketch19.addConstraint([
    Sketcher.Constraint("Tangent", 0, 2, 1, 2),
    Sketcher.Constraint("Tangent", 1, 1, 2, 1),
    Sketcher.Constraint("Tangent", 2, 2, 3, 2),
    Sketcher.Constraint("Tangent", 3, 1, 0, 1),
    Sketcher.Constraint("Horizontal", 0),
    Sketcher.Constraint("Horizontal", 2),
    Sketcher.Constraint("Radius", 1, Q("2.5 mm")),
    Sketcher.Constraint("DistanceX", 0, 2, 0, 1, Q("21.5 mm")),
    Sketcher.Constraint("DistanceY", 1, 3, -1, 1, Q("10 mm")),
    Sketcher.Constraint("DistanceX", -1, 1, 3, 3, Q("285 mm")),
])
pocket18 = body.newObject("PartDesign::Pocket", "Pocket017")
pocket18.Profile = sketch19
pocket18.Type = "UpToFirst"
pocket18.Reversed = True

sketch20 = body.newObject("Sketcher::SketchObject", "Sketch019")
sketch20.AttachmentSupport = (doc.getObject("XZ_Plane"), [""])
sketch20.MapMode = "FlatFace"
sketch20.AttachmentOffset = App.Placement(V(0, 0, -5), App.Rotation())
sketch20.addGeometry([
    Part.LineSegment(V(252, -62, 0), V(250, -62, 0)),
    Part.ArcOfCircle(Part.Circle(V(250, -58, 0), V(0, 0, 1), 4), math.radians(90), math.radians(270)),
    Part.LineSegment(V(250, -54, 0), V(252, -54, 0)),
    Part.ArcOfCircle(Part.Circle(V(252, -58, 0), V(0, 0, 1), 4), math.radians(-90), math.radians(90)),
], False)
sketch20.addConstraint([
    Sketcher.Constraint("Tangent", 0, 2, 1, 2),
    Sketcher.Constraint("Tangent", 1, 1, 2, 1),
    Sketcher.Constraint("Tangent", 2, 2, 3, 2),
    Sketcher.Constraint("Tangent", 3, 1, 0, 1),
    Sketcher.Constraint("Horizontal", 0),
    Sketcher.Constraint("Horizontal", 2),
    Sketcher.Constraint("Radius", 1, Q("4 mm")),
    Sketcher.Constraint("DistanceX", 0, 2, 0, 1, Q("2 mm")),
    Sketcher.Constraint("DistanceX", -1, 1, 1, 3, Q("250 mm")),
    Sketcher.Constraint("DistanceY", 1, 3, -1, 1, Q("58 mm")),
])
pocket19 = body.newObject("PartDesign::Pocket", "Pocket018")
pocket19.Profile = sketch20
pocket19.Type = "UpToFirst"
pocket19.Reversed = True

sketch21 = body.newObject("Sketcher::SketchObject", "Sketch020")
sketch21.AttachmentSupport = (doc.getObject("XZ_Plane"), [""])
sketch21.MapMode = "FlatFace"
sketch21.AttachmentOffset = App.Placement(V(0, 0, -5), App.Rotation())
sketch21.addGeometry([
    Part.LineSegment(V(252, -49, 0), V(250, -49, 0)),
    Part.ArcOfCircle(Part.Circle(V(250, -45, 0), V(0, 0, 1), 4), math.radians(90), math.radians(270)),
    Part.LineSegment(V(250, -41, 0), V(252, -41, 0)),
    Part.ArcOfCircle(Part.Circle(V(252, -45, 0), V(0, 0, 1), 4), math.radians(-90), math.radians(90)),
], False)
sketch21.addConstraint([
    Sketcher.Constraint("Tangent", 0, 2, 1, 2),
    Sketcher.Constraint("Tangent", 1, 1, 2, 1),
    Sketcher.Constraint("Tangent", 2, 2, 3, 2),
    Sketcher.Constraint("Tangent", 3, 1, 0, 1),
    Sketcher.Constraint("Horizontal", 0),
    Sketcher.Constraint("Horizontal", 2),
    Sketcher.Constraint("Radius", 1, Q("4 mm")),
    Sketcher.Constraint("DistanceX", 0, 2, 0, 1, Q("2 mm")),
    Sketcher.Constraint("DistanceX", -1, 1, 1, 3, Q("250 mm")),
    Sketcher.Constraint("DistanceY", 1, 3, -1, 1, Q("45 mm")),
])
pocket20 = body.newObject("PartDesign::Pocket", "Pocket019")
pocket20.Profile = sketch21
pocket20.Type = "UpToFirst"
pocket20.Reversed = True

sketch22 = body.newObject("Sketcher::SketchObject", "Sketch021")
sketch22.AttachmentSupport = (doc.getObject("XZ_Plane"), [""])
sketch22.MapMode = "FlatFace"
sketch22.AttachmentOffset = App.Placement(V(0, 0, -5), App.Rotation())
sketch22.addGeometry([
    Part.LineSegment(V(252, -36.2, 0), V(250, -36.2, 0)),
    Part.ArcOfCircle(Part.Circle(V(250, -32.2, 0), V(0, 0, 1), 4), math.radians(90), math.radians(270)),
    Part.LineSegment(V(250, -28.2, 0), V(252, -28.2, 0)),
    Part.ArcOfCircle(Part.Circle(V(252, -32.2, 0), V(0, 0, 1), 4), math.radians(-90), math.radians(90)),
], False)
sketch22.addConstraint([
    Sketcher.Constraint("Tangent", 0, 2, 1, 2),
    Sketcher.Constraint("Tangent", 1, 1, 2, 1),
    Sketcher.Constraint("Tangent", 2, 2, 3, 2),
    Sketcher.Constraint("Tangent", 3, 1, 0, 1),
    Sketcher.Constraint("Horizontal", 0),
    Sketcher.Constraint("Horizontal", 2),
    Sketcher.Constraint("Radius", 1, Q("4 mm")),
    Sketcher.Constraint("DistanceX", 0, 2, 0, 1, Q("2 mm")),
    Sketcher.Constraint("DistanceX", -1, 1, 1, 3, Q("250 mm")),
    Sketcher.Constraint("DistanceY", 1, 3, -1, 1, Q("32.25 mm")),
])
pocket21 = body.newObject("PartDesign::Pocket", "Pocket020")
pocket21.Profile = sketch22
pocket21.Type = "UpToFirst"
pocket21.Reversed = True

sketch23 = body.newObject("Sketcher::SketchObject", "Sketch022")
sketch23.AttachmentSupport = (doc.getObject("XZ_Plane"), [""])
sketch23.MapMode = "FlatFace"
sketch23.AttachmentOffset = App.Placement(V(0, 0, -5), App.Rotation())
sketch23.addGeometry([
    Part.LineSegment(V(252, -23.5, 0), V(250, -23.5, 0)),
    Part.ArcOfCircle(Part.Circle(V(250, -19.5, 0), V(0, 0, 1), 4), math.radians(90), math.radians(270)),
    Part.LineSegment(V(250, -15.5, 0), V(252, -15.5, 0)),
    Part.ArcOfCircle(Part.Circle(V(252, -19.5, 0), V(0, 0, 1), 4), math.radians(-90), math.radians(90)),
], False)
sketch23.addConstraint([
    Sketcher.Constraint("Tangent", 0, 2, 1, 2),
    Sketcher.Constraint("Tangent", 1, 1, 2, 1),
    Sketcher.Constraint("Tangent", 2, 2, 3, 2),
    Sketcher.Constraint("Tangent", 3, 1, 0, 1),
    Sketcher.Constraint("Horizontal", 0),
    Sketcher.Constraint("Horizontal", 2),
    Sketcher.Constraint("Radius", 1, Q("4 mm")),
    Sketcher.Constraint("DistanceX", 0, 2, 0, 1, Q("2 mm")),
    Sketcher.Constraint("DistanceX", -1, 1, 1, 3, Q("250 mm")),
    Sketcher.Constraint("DistanceY", 1, 3, -1, 1, Q("19.5 mm")),
])
pocket22 = body.newObject("PartDesign::Pocket", "Pocket021")
pocket22.Profile = sketch23
pocket22.Type = "UpToFirst"
pocket22.Reversed = True

sketch24 = body.newObject("Sketcher::SketchObject", "Sketch023")
sketch24.AttachmentSupport = (doc.getObject("XZ_Plane"), [""])
sketch24.MapMode = "FlatFace"
sketch24.AttachmentOffset = App.Placement(V(0, 0, -5), App.Rotation())
sketch24.addGeometry([
    Part.LineSegment(V(253.5, -12.5, 0), V(248.5, -12.5, 0)),
    Part.ArcOfCircle(Part.Circle(V(248.5, -10, 0), V(0, 0, 1), 2.5), math.radians(90), math.radians(270)),
    Part.LineSegment(V(248.5, -7.5, 0), V(253.5, -7.5, 0)),
    Part.ArcOfCircle(Part.Circle(V(253.5, -10, 0), V(0, 0, 1), 2.5), math.radians(-90), math.radians(90)),
], False)
sketch24.addConstraint([
    Sketcher.Constraint("Tangent", 0, 2, 1, 2),
    Sketcher.Constraint("Tangent", 1, 1, 2, 1),
    Sketcher.Constraint("Tangent", 2, 2, 3, 2),
    Sketcher.Constraint("Tangent", 3, 1, 0, 1),
    Sketcher.Constraint("Horizontal", 0),
    Sketcher.Constraint("Horizontal", 2),
    Sketcher.Constraint("Radius", 1, Q("2.5 mm")),
    Sketcher.Constraint("DistanceX", 0, 2, 0, 1, Q("5 mm")),
    Sketcher.Constraint("DistanceY", 1, 3, -1, 1, Q("10 mm")),
    Sketcher.Constraint("DistanceX", -1, 1, 1, 3, Q("248.5 mm")),
])
pocket23 = body.newObject("PartDesign::Pocket", "Pocket022")
pocket23.Profile = sketch24
pocket23.Type = "UpToFirst"
pocket23.Reversed = True

sketch25 = body.newObject("Sketcher::SketchObject", "Sketch024")
sketch25.AttachmentSupport = (doc.getObject("XZ_Plane"), [""])
sketch25.MapMode = "FlatFace"
sketch25.AttachmentOffset = App.Placement(V(0, 0, -5), App.Rotation())
sketch25.addGeometry([
    Part.LineSegment(V(236, -52.5, 0), V(226, -52.5, 0)),
    Part.ArcOfCircle(Part.Circle(V(226, -48.5, 0), V(0, 0, 1), 4), math.radians(90), math.radians(270)),
    Part.LineSegment(V(226, -44.5, 0), V(236, -44.5, 0)),
    Part.ArcOfCircle(Part.Circle(V(236, -48.5, 0), V(0, 0, 1), 4), math.radians(-90), math.radians(90)),
], False)
sketch25.addConstraint([
    Sketcher.Constraint("Tangent", 0, 2, 1, 2),
    Sketcher.Constraint("Tangent", 1, 1, 2, 1),
    Sketcher.Constraint("Tangent", 2, 2, 3, 2),
    Sketcher.Constraint("Tangent", 3, 1, 0, 1),
    Sketcher.Constraint("Horizontal", 0),
    Sketcher.Constraint("Horizontal", 2),
    Sketcher.Constraint("Radius", 1, Q("4 mm")),
    Sketcher.Constraint("DistanceX", 0, 2, 0, 1, Q("10 mm")),
    Sketcher.Constraint("DistanceX", -1, 1, 1, 3, Q("226 mm")),
    Sketcher.Constraint("DistanceY", 1, 3, -1, 1, Q("48.5 mm")),
])
pocket24 = body.newObject("PartDesign::Pocket", "Pocket023")
pocket24.Profile = sketch25
pocket24.Type = "UpToFirst"
pocket24.Reversed = True

sketch26 = body.newObject("Sketcher::SketchObject", "Sketch025")
sketch26.AttachmentSupport = (doc.getObject("XZ_Plane"), [""])
sketch26.MapMode = "FlatFace"
sketch26.AttachmentOffset = App.Placement(V(0, 0, -5), App.Rotation())
sketch26.addGeometry([
    Part.Circle(V(165, -15.1, 0), V(0, 0, 1), 14),
    Part.Circle(V(153, -27.1, 0), V(0, 0, 1), 1.2),
    Part.Circle(V(177, -27.1, 0), V(0, 0, 1), 1.2),
    Part.Circle(V(177, -3.1, 0), V(0, 0, 1), 1.2),
    Part.Circle(V(153, -3.1, 0), V(0, 0, 1), 1.2),
], False)
sketch26.addConstraint([
    Sketcher.Constraint("Equal", 1, 2),
    Sketcher.Constraint("Equal", 2, 3),
    Sketcher.Constraint("Equal", 3, 4),
    Sketcher.Constraint("Horizontal", 1, 3, 2, 3),
    Sketcher.Constraint("Horizontal", 3, 3, 4, 3),
    Sketcher.Constraint("Vertical", 2, 3, 3, 3),
    Sketcher.Constraint("Vertical", 1, 3, 4, 3),
    Sketcher.Constraint("Diameter", 0, Q("28 mm")),
    Sketcher.Constraint("Diameter", 1, Q("2.5 mm")),
    Sketcher.Constraint("DistanceX", -1, 1, 0, 3, Q("165 mm")),
    Sketcher.Constraint("DistanceX", -1, 1, 1, 3, Q("153 mm")),
    Sketcher.Constraint("DistanceX", -1, 1, 2, 3, Q("177 mm")),
    Sketcher.Constraint("DistanceY", 1, 3, 0, 3, Q("12 mm")),
    Sketcher.Constraint("DistanceY", 0, 3, 3, 3, Q("12 mm")),
    Sketcher.Constraint("DistanceY", 0, 3, -1, 1, Q("15.1 mm")),
])
pocket25 = body.newObject("PartDesign::Pocket", "Pocket024")
pocket25.Profile = sketch26
pocket25.Length = 10
pocket25.Reversed = True

doc.recompute()
